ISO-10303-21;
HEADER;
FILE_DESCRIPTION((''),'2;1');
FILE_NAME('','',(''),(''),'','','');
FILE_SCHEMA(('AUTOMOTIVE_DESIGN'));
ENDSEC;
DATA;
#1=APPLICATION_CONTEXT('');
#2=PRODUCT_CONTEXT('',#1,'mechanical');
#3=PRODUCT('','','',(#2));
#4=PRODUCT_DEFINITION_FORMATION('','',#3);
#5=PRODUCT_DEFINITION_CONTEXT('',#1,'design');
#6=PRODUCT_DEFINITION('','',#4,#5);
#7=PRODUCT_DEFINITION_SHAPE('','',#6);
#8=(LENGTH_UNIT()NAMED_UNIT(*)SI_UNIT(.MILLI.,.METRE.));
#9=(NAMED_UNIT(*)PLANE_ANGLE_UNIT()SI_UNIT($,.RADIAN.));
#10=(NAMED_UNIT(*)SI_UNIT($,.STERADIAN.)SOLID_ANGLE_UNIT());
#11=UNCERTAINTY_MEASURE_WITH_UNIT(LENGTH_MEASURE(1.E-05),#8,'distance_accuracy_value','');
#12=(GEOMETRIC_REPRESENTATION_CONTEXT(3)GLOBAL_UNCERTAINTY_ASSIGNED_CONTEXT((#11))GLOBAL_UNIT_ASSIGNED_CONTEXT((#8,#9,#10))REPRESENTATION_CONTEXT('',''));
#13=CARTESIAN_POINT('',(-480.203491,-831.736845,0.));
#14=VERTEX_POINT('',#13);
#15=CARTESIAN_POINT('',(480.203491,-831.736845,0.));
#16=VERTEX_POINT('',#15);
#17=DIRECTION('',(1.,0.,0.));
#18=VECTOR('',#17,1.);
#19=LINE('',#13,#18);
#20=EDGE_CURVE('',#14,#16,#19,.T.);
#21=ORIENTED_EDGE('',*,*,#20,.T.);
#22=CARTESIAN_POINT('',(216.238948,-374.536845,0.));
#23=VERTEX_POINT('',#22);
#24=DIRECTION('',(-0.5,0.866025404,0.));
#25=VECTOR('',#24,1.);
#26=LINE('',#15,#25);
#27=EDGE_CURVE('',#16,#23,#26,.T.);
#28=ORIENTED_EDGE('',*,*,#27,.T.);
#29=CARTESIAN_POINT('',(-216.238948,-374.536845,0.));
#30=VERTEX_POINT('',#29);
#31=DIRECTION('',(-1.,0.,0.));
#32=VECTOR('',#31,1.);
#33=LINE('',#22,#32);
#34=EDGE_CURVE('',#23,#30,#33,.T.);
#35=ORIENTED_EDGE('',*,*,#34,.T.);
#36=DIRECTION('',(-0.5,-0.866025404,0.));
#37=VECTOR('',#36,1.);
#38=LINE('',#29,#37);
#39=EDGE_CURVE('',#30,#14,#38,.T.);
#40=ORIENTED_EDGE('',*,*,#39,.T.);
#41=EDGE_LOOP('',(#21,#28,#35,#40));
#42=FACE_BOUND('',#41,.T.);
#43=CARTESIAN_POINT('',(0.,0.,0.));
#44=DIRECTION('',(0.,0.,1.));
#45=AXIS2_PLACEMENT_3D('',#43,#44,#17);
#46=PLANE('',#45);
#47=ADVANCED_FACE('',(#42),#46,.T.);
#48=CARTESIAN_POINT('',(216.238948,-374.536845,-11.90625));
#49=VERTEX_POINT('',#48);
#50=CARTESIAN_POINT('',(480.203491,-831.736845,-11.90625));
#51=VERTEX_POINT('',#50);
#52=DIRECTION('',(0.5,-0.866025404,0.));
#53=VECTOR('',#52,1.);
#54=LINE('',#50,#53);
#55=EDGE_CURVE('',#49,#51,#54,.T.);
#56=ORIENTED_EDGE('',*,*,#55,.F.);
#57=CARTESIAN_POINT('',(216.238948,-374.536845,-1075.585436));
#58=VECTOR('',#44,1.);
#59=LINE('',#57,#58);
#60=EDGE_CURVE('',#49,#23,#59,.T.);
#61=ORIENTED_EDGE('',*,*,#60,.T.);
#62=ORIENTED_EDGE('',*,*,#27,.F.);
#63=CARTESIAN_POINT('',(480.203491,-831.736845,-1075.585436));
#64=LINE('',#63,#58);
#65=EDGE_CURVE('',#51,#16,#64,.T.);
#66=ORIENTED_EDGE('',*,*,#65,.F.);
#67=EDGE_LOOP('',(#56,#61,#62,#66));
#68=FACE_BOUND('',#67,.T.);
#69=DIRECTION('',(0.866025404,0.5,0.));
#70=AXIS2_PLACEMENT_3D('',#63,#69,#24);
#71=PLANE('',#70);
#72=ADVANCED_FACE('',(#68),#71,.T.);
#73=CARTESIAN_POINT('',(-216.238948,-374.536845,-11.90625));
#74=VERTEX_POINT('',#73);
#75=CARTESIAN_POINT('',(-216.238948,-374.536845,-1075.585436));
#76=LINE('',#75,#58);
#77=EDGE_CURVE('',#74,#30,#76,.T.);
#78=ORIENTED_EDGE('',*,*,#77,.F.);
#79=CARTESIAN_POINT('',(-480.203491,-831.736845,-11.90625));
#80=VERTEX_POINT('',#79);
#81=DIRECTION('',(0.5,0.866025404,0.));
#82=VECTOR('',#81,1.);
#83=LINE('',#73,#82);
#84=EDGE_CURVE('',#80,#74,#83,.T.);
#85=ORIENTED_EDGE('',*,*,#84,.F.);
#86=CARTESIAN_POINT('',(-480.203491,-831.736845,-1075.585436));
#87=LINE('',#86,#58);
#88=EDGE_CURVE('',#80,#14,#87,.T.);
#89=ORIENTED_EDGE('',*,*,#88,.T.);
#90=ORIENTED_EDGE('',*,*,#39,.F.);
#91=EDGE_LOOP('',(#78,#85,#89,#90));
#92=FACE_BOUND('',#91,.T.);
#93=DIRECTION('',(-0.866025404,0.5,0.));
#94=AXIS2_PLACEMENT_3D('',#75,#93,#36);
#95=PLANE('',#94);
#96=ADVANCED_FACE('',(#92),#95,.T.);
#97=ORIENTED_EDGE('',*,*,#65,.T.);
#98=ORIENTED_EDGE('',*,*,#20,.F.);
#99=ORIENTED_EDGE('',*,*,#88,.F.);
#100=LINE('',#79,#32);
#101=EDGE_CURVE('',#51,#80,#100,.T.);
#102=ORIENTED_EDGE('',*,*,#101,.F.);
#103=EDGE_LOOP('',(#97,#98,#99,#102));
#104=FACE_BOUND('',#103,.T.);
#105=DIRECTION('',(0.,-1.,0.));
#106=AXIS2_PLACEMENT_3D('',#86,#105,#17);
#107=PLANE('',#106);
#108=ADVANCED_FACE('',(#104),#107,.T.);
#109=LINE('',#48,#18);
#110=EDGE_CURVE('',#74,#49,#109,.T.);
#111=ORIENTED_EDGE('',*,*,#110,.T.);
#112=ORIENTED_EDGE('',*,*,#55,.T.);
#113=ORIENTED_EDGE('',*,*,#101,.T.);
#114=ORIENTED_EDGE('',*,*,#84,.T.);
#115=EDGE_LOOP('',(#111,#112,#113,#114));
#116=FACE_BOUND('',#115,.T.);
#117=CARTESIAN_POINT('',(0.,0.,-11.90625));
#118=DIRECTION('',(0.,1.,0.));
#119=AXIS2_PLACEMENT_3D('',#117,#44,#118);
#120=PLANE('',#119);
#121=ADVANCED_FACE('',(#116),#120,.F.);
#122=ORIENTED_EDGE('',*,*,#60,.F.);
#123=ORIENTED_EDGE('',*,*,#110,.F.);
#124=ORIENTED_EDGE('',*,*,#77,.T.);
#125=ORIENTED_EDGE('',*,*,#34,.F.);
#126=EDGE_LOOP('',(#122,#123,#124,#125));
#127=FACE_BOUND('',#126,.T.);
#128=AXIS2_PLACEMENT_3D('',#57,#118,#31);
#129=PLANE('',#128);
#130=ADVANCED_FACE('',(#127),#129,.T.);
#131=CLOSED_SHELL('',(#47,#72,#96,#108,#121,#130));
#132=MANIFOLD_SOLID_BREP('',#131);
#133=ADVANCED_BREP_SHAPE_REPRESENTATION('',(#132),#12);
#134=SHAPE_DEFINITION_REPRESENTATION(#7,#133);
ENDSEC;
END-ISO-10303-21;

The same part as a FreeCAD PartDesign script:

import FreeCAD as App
import Part
import Sketcher
from FreeCAD import Vector
Q = App.Units.Quantity


def add_polygon(sketch, points):
    """Adds a closed chain of lines whose ends are joined by coincident constraints."""
    first, n = sketch.GeometryCount, len(points)
    for a, b in zip(points, points[1:] + points[:1]):
        sketch.addGeometry(Part.LineSegment(App.Vector(*a, 0), App.Vector(*b, 0)), False)
    for i in range(n):
        sketch.addConstraint(Sketcher.Constraint("Coincident", first + i, 2, first + (i + 1) % n, 1))

doc = App.newDocument("Part")
body = doc.addObject("PartDesign::Body", "Body")

sketch1 = doc.addObject("Sketcher::SketchObject", "Sketch")
body.addObject(sketch1)
sketch1.AttachmentSupport = (doc.XY_Plane, [""])
sketch1.MapMode = "FlatFace"
add_polygon(sketch1, [(-480, -832), (480, -832), (216, -375), (-216, -375)])
sketch1.addConstraint([
    Sketcher.Constraint("Horizontal", 0),
    Sketcher.Constraint("Horizontal", 2),
    Sketcher.Constraint("Equal", 1, 3),
    Sketcher.Constraint("Angle", 1, Q("120 deg")),
    Sketcher.Constraint("DistanceY", 0, 2, 1, 2, Q("18 in")),
    Sketcher.Constraint("DistanceX", 0, 1, 0, 2, Q("960.406982 mm")),
    Sketcher.Constraint("DistanceX", -1, 1, 0, 2, Q("480.203491 mm")),
    Sketcher.Constraint("DistanceY", 0, 2, -1, 1, Q("831.736845 mm")),
])
pad1 = doc.addObject("PartDesign::Pad", "Pad")
body.addObject(pad1)
pad1.Profile = sketch1
pad1.Length = Q("0.46875 in")
pad1.Reversed = True

doc.recompute()
